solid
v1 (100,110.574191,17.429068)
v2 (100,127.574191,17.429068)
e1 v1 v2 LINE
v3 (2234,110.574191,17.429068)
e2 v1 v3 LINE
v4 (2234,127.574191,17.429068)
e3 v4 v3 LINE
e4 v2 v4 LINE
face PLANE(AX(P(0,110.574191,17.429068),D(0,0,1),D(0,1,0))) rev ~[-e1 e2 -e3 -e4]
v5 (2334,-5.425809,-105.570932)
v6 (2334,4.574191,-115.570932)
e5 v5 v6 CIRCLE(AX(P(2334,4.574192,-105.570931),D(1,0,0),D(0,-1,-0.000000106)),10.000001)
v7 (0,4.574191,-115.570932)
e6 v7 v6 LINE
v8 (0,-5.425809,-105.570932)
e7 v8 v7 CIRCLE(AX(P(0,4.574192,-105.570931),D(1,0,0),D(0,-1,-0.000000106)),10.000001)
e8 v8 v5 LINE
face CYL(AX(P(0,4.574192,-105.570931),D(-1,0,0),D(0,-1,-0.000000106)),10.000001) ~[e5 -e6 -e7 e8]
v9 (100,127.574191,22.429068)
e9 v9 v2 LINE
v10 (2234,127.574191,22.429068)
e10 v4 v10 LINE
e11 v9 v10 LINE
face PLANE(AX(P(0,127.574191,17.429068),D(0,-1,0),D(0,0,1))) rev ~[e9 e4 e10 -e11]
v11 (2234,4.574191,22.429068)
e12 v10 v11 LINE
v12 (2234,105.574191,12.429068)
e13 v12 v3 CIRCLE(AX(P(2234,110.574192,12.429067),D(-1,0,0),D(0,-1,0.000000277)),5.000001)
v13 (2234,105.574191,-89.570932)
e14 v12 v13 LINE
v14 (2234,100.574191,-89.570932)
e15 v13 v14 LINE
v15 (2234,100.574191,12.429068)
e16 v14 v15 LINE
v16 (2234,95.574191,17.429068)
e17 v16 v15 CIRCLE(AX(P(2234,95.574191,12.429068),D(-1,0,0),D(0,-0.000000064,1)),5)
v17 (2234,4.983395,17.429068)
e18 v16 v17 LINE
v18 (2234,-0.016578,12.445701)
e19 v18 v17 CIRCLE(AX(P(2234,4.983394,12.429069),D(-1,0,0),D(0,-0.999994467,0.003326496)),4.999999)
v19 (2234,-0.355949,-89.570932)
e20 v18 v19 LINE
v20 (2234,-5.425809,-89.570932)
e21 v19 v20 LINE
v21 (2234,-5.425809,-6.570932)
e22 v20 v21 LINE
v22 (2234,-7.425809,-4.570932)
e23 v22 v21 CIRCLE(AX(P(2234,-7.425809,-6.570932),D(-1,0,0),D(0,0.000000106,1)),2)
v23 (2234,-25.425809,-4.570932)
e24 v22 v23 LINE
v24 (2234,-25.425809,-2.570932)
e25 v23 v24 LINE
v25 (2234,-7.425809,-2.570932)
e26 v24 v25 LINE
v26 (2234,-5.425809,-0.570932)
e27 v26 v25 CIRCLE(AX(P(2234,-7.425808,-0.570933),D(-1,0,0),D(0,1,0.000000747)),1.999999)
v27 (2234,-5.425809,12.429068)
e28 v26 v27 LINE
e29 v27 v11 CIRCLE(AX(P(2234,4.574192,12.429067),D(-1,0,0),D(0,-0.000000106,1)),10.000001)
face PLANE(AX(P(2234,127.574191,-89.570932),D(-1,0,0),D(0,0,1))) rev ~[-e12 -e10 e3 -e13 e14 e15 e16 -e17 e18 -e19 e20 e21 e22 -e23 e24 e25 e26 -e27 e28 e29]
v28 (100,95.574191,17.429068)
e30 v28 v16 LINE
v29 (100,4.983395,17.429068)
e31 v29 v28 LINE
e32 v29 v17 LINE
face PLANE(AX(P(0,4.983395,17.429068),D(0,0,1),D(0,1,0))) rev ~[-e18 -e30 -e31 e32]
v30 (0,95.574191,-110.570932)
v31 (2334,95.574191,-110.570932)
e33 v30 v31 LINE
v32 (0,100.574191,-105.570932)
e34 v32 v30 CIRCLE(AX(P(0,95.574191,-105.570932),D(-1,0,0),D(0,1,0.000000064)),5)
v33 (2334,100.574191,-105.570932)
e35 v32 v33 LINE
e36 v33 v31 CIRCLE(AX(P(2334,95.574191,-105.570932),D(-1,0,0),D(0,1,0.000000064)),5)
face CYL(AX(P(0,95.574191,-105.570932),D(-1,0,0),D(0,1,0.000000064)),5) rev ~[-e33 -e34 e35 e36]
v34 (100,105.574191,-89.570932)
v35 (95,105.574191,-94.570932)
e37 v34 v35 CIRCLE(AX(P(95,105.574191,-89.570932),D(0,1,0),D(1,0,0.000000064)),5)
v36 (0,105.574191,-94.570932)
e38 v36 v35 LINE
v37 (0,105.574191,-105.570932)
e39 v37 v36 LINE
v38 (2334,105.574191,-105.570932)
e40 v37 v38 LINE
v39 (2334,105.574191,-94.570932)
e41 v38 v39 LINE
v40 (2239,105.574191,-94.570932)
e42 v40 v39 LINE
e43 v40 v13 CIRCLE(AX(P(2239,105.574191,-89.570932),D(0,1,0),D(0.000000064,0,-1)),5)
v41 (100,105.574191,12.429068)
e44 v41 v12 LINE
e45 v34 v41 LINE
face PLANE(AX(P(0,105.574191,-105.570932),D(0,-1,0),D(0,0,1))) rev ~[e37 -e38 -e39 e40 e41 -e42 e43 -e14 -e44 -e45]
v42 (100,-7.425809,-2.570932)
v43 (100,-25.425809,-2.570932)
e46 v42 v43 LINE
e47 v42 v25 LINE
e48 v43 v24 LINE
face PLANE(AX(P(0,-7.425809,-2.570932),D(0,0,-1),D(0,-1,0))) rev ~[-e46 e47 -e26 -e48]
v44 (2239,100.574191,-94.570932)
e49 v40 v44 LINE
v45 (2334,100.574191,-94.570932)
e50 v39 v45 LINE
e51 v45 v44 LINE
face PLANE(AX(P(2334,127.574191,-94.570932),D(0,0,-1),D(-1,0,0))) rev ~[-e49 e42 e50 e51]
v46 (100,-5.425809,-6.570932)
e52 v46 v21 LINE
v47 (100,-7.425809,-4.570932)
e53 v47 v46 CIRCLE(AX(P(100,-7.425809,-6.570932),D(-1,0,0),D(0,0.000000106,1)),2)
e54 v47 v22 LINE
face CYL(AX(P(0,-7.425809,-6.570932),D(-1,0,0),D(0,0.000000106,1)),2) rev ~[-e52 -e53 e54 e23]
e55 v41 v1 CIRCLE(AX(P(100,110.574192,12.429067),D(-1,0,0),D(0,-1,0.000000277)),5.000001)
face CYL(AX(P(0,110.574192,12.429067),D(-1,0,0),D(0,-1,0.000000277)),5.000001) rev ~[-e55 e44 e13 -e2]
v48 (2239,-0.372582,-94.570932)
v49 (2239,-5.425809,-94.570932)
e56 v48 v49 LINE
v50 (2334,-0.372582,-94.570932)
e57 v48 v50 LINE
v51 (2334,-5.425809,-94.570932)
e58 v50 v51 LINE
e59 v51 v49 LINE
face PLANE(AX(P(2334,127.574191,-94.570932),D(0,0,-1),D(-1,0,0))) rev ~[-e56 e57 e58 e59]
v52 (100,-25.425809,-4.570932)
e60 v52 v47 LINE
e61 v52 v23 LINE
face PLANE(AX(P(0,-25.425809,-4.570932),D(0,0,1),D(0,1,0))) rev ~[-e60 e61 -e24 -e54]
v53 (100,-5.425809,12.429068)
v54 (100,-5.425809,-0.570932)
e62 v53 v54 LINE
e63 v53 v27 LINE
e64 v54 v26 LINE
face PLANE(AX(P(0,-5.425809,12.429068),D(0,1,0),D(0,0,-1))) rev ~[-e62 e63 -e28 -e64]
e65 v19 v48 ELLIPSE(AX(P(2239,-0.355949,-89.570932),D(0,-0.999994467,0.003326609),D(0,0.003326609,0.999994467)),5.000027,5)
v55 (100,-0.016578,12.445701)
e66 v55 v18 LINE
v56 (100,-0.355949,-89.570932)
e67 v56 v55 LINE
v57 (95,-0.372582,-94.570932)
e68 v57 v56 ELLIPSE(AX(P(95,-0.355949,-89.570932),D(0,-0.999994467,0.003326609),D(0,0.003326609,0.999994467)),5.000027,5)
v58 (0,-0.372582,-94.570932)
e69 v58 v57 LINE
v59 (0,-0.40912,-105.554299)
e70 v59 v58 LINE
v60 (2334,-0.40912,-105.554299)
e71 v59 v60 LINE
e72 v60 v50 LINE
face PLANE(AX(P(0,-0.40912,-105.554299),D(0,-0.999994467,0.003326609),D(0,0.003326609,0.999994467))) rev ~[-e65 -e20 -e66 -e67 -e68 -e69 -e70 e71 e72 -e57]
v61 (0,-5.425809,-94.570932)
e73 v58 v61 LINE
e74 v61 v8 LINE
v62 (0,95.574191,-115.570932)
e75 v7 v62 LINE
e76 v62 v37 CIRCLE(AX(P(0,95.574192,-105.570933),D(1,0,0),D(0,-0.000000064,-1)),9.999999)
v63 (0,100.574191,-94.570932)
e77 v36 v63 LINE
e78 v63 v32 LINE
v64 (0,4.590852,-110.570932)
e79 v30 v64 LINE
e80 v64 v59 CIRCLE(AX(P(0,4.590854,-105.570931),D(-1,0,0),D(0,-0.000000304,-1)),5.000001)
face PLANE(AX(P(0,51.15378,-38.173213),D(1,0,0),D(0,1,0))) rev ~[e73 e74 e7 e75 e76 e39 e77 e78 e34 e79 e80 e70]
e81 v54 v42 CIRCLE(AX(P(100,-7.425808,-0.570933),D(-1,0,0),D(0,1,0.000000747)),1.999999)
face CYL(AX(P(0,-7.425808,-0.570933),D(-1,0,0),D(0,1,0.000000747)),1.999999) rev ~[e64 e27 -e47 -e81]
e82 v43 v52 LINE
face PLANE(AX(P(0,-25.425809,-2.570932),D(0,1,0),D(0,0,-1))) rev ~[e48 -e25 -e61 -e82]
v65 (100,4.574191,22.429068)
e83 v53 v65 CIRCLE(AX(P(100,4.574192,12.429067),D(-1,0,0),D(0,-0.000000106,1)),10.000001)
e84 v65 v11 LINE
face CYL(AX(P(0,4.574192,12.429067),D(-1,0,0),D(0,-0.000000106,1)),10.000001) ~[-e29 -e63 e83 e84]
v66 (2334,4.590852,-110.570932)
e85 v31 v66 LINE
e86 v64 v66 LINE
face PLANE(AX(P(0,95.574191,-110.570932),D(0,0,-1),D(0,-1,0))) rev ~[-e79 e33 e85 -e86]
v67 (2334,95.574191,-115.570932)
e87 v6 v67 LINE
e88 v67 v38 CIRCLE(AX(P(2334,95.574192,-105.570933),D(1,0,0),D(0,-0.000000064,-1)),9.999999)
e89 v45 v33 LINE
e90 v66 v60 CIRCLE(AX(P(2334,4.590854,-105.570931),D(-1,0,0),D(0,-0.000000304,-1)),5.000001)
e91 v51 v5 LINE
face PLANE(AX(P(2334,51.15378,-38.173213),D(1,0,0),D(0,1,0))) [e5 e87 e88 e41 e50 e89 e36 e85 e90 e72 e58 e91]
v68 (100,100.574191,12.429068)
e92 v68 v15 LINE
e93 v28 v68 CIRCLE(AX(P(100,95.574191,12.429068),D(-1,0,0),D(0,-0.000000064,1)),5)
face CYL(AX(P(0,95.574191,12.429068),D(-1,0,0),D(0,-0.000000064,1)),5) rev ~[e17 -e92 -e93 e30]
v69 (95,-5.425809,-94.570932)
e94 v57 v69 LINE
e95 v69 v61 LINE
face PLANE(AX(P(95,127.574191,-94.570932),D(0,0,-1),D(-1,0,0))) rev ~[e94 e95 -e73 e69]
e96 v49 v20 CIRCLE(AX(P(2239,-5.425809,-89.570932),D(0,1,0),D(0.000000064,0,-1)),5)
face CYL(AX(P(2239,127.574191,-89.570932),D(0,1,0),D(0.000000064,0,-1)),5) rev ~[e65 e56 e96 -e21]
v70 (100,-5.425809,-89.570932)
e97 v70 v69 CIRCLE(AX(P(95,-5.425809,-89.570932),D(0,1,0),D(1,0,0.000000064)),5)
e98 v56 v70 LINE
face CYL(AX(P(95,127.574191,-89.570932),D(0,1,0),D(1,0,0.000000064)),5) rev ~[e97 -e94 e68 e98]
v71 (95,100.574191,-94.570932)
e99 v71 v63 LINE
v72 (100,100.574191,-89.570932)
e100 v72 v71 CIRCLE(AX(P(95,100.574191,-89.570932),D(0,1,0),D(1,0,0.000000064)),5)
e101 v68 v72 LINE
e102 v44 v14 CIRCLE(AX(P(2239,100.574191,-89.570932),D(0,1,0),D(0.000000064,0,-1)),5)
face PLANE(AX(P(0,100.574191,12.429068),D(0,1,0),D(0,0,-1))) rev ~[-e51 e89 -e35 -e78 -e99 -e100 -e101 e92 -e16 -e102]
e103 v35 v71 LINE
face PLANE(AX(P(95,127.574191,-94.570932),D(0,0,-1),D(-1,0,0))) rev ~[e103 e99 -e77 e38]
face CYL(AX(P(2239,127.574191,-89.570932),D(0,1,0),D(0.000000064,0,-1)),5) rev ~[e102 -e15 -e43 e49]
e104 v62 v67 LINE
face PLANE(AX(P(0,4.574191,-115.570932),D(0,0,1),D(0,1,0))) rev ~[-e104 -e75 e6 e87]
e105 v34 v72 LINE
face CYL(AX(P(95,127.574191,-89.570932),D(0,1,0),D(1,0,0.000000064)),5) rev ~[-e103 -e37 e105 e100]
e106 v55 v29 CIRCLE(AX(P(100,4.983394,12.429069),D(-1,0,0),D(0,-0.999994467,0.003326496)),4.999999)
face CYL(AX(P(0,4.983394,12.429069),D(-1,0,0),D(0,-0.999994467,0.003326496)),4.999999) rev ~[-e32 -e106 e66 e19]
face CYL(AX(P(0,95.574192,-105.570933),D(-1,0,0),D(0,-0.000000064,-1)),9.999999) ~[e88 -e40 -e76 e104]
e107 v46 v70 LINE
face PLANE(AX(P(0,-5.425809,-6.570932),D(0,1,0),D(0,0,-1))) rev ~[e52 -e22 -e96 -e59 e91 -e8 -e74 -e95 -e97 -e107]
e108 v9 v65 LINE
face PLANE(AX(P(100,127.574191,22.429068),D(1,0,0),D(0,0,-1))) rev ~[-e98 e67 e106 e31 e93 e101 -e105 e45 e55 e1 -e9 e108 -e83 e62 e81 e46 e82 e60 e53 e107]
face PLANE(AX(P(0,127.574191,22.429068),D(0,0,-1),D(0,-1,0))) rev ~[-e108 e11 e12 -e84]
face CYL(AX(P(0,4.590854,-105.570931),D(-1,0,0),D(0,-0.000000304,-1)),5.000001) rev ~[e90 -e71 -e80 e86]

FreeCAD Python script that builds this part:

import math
import FreeCAD as App
import Part
import Sketcher

V = App.Vector
Q = App.Units.Quantity

doc = App.newDocument("Part")
body = doc.addObject("PartDesign::Body", "Body")

sketch1 = doc.addObject("Sketcher::SketchObject", "Sketch")
body.addObject(sketch1)
sketch1.AttachmentSupport = (doc.YZ_Plane, [""])
sketch1.MapMode = "FlatFace"
sketch1.addGeometry([
    Part.LineSegment(V(127.6, 17.4, 0), V(127.6, 22.4, 0)),
    Part.LineSegment(V(127.6, 22.4, 0), V(4.6, 22.4, 0)),
    Part.ArcOfCircle(Part.Circle(V(4.6, 12.4, 0), V(0, 0, 1), 10), math.radians(90), math.radians(180)),
    Part.LineSegment(V(-5.4, 12.4, 0), V(-5.4, -0.6, 0)),
    Part.ArcOfCircle(Part.Circle(V(-7.4, -0.6, 0), V(0, 0, 1), 2), math.radians(-90), math.radians(0)),
    Part.LineSegment(V(-7.4, -2.6, 0), V(-25.4, -2.6, 0)),
    Part.LineSegment(V(-25.4, -2.6, 0), V(-25.4, -4.6, 0)),
    Part.LineSegment(V(-25.4, -4.6, 0), V(-7.4, -4.6, 0)),
    Part.ArcOfCircle(Part.Circle(V(-7.4, -6.6, 0), V(0, 0, 1), 2), math.radians(0), math.radians(90)),
    Part.LineSegment(V(-5.4, -6.6, 0), V(-5.4, -105.6, 0)),
    Part.ArcOfCircle(Part.Circle(V(4.6, -105.6, 0), V(0, 0, 1), 10), math.radians(-180), math.radians(-90)),
    Part.LineSegment(V(4.6, -115.6, 0), V(95.6, -115.6, 0)),
    Part.ArcOfCircle(Part.Circle(V(95.6, -105.6, 0), V(0, 0, 1), 10), math.radians(-90), math.radians(0)),
    Part.LineSegment(V(105.6, -105.6, 0), V(105.6, 12.4, 0)),
    Part.ArcOfCircle(Part.Circle(V(110.6, 12.4, 0), V(0, 0, 1), 5), math.radians(90), math.radians(180)),
    Part.LineSegment(V(110.6, 17.4, 0), V(127.6, 17.4, 0)),
    Part.ArcOfCircle(Part.Circle(V(95.6, 12.4, 0), V(0, 0, 1), 5), math.radians(0), math.radians(90)),
    Part.LineSegment(V(100.6, 12.4, 0), V(100.6, -105.6, 0)),
    Part.ArcOfCircle(Part.Circle(V(95.6, -105.6, 0), V(0, 0, 1), 5), math.radians(-90), math.radians(0)),
    Part.LineSegment(V(95.6, -110.6, 0), V(4.6, -110.6, 0)),
    Part.ArcOfCircle(Part.Circle(V(4.6, -105.6, 0), V(0, 0, 1), 5), math.radians(180), math.radians(270)),
    Part.LineSegment(V(-0.4, -105.6, 0), V(0, 12.4, 0)),
    Part.ArcOfCircle(Part.Circle(V(5, 12.4, 0), V(0, 0, 1), 5), math.radians(90), math.radians(180)),
    Part.LineSegment(V(5, 17.4, 0), V(95.6, 17.4, 0)),
], False)
sketch1.addConstraint([
    Sketcher.Constraint("Coincident", 0, 2, 1, 1),
    Sketcher.Constraint("Tangent", 1, 2, 2, 1),
    Sketcher.Constraint("Tangent", 2, 2, 3, 1),
    Sketcher.Constraint("Tangent", 3, 2, 4, 2),
    Sketcher.Constraint("Tangent", 4, 1, 5, 1),
    Sketcher.Constraint("Coincident", 5, 2, 6, 1),
    Sketcher.Constraint("Coincident", 6, 2, 7, 1),
    Sketcher.Constraint("Tangent", 7, 2, 8, 2),
    Sketcher.Constraint("Tangent", 8, 1, 9, 1),
    Sketcher.Constraint("Tangent", 9, 2, 10, 1),
    Sketcher.Constraint("Tangent", 10, 2, 11, 1),
    Sketcher.Constraint("Tangent", 11, 2, 12, 1),
    Sketcher.Constraint("Tangent", 12, 2, 13, 1),
    Sketcher.Constraint("Tangent", 13, 2, 14, 2),
    Sketcher.Constraint("Tangent", 14, 1, 15, 1),
    Sketcher.Constraint("Coincident", 15, 2, 0, 1),
    Sketcher.Constraint("Tangent", 16, 1, 17, 1),
    Sketcher.Constraint("Tangent", 17, 2, 18, 2),
    Sketcher.Constraint("Tangent", 18, 1, 19, 1),
    Sketcher.Constraint("Tangent", 19, 2, 20, 2),
    Sketcher.Constraint("Tangent", 20, 1, 21, 1),
    Sketcher.Constraint("Tangent", 21, 2, 22, 2),
    Sketcher.Constraint("Tangent", 22, 1, 23, 1),
    Sketcher.Constraint("Tangent", 23, 2, 16, 2),
    Sketcher.Constraint("Vertical", 0),
    Sketcher.Constraint("Horizontal", 1),
    Sketcher.Constraint("Vertical", 3),
    Sketcher.Constraint("Horizontal", 5),
    Sketcher.Constraint("Vertical", 6),
    Sketcher.Constraint("Horizontal", 7),
    Sketcher.Constraint("Vertical", 9),
    Sketcher.Constraint("Horizontal", 11),
    Sketcher.Constraint("Vertical", 13),
    Sketcher.Constraint("Horizontal", 15),
    Sketcher.Constraint("Vertical", 17),
    Sketcher.Constraint("Horizontal", 19),
    Sketcher.Constraint("Horizontal", 23),
    Sketcher.Constraint("Coincident", 18, 3, 12, 3),
    Sketcher.Constraint("Equal", 4, 8),
    Sketcher.Constraint("Equal", 2, 10),
    Sketcher.Constraint("Equal", 10, 12),
    Sketcher.Constraint("Equal", 14, 16),
    Sketcher.Constraint("Equal", 16, 18),
    Sketcher.Constraint("Equal", 18, 20),
    Sketcher.Constraint("Equal", 20, 22),
    Sketcher.Constraint("Horizontal", 2, 3, 14, 3),
    Sketcher.Constraint("Horizontal", 14, 3, 16, 3),
    Sketcher.Constraint("Vertical", 4, 3, 8, 3),
    Sketcher.Constraint("Radius", 2, Q("10.000001 mm")),
    Sketcher.Constraint("Radius", 4, Q("1.999999 mm")),
    Sketcher.Constraint("Radius", 14, Q("5.000001 mm")),
    Sketcher.Constraint("DistanceX", 1, 2, 1, 1, Q("123 mm")),
    Sketcher.Constraint("DistanceX", 5, 2, 5, 1, Q("18 mm")),
    Sketcher.Constraint("DistanceX", 11, 1, 11, 2, Q("91 mm")),
    Sketcher.Constraint("DistanceY", 3, 2, 3, 1, Q("13 mm")),
    Sketcher.Constraint("DistanceY", 6, 2, 6, 1, Q("2 mm")),
    Sketcher.Constraint("DistanceY", 9, 2, 9, 1, Q("99 mm")),
    Sketcher.Constraint("DistanceX", 19, 2, 19, 1, Q("90.983339 mm")),
    Sketcher.Constraint("DistanceY", 20, 1, -1, 1, Q("105.554299 mm")),
    Sketcher.Constraint("DistanceX", 2, 3, 22, 3, Q("0.409202 mm")),
    Sketcher.Constraint("DistanceX", 8, 3, -1, 1, Q("7.425809 mm")),
])
pad1 = doc.addObject("PartDesign::Pad", "Pad")
body.addObject(pad1)
pad1.Profile = sketch1
pad1.Length = 2334

sketch2 = doc.addObject("Sketcher::SketchObject", "Sketch001")
body.addObject(sketch2)
sketch2.AttachmentSupport = (doc.XZ_Plane, [""])
sketch2.MapMode = "FlatFace"
sketch2.AttachmentOffset = App.Placement(V(0, 0, -127.574191), App.Rotation())
sketch2.addGeometry([
    Part.ArcOfCircle(Part.Circle(V(95, -89.6, 0), V(0, 0, 1), 5), math.radians(-90), math.radians(0)),
    Part.LineSegment(V(95, -94.6, 0), V(0, -94.6, 0)),
    Part.LineSegment(V(0, -94.6, 0), V(0, 22.4, 0)),
    Part.LineSegment(V(0, 22.4, 0), V(100, 22.4, 0)),
    Part.LineSegment(V(100, 22.4, 0), V(100, -89.6, 0)),
    Part.LineSegment(V(2334, -94.6, 0), V(2239, -94.6, 0)),
    Part.ArcOfCircle(Part.Circle(V(2239, -89.6, 0), V(0, 0, 1), 5), math.radians(180), math.radians(270)),
    Part.LineSegment(V(2234, -89.6, 0), V(2234, 22.4, 0)),
    Part.LineSegment(V(2234, 22.4, 0), V(2334, 22.4, 0)),
    Part.LineSegment(V(2334, 22.4, 0), V(2334, -94.6, 0)),
], False)
sketch2.addConstraint([
    Sketcher.Constraint("Tangent", 0, 1, 1, 1),
    Sketcher.Constraint("Coincident", 1, 2, 2, 1),
    Sketcher.Constraint("Coincident", 2, 2, 3, 1),
    Sketcher.Constraint("Coincident", 3, 2, 4, 1),
    Sketcher.Constraint("Tangent", 4, 2, 0, 2),
    Sketcher.Constraint("Tangent", 5, 2, 6, 2),
    Sketcher.Constraint("Tangent", 6, 1, 7, 1),
    Sketcher.Constraint("Coincident", 7, 2, 8, 1),
    Sketcher.Constraint("Coincident", 8, 2, 9, 1),
    Sketcher.Constraint("Coincident", 9, 2, 5, 1),
    Sketcher.Constraint("Horizontal", 1),
    Sketcher.Constraint("Vertical", 2),
    Sketcher.Constraint("Horizontal", 3),
    Sketcher.Constraint("Vertical", 4),
    Sketcher.Constraint("Horizontal", 5),
    Sketcher.Constraint("Vertical", 7),
    Sketcher.Constraint("Horizontal", 8),
    Sketcher.Constraint("Vertical", 9),
    Sketcher.Constraint("Equal", 0, 6),
    Sketcher.Constraint("PointOnObject", 1, 2, -2),
    Sketcher.Constraint("Horizontal", 0, 3, 6, 3),
    Sketcher.Constraint("Horizontal", 3, 2, 7, 2),
    Sketcher.Constraint("Equal", 1, 5),
    Sketcher.Constraint("Radius", 0, Q("5 mm")),
    Sketcher.Constraint("DistanceX", 1, 2, 1, 1, Q("95 mm")),
    Sketcher.Constraint("DistanceY", 2, 1, 2, 2, Q("117 mm")),
    Sketcher.Constraint("DistanceX", -1, 1, 6, 3, Q("2239 mm")),
    Sketcher.Constraint("DistanceY", 0, 1, -1, 1, Q("94.570932 mm")),
])
pocket1 = doc.addObject("PartDesign::Pocket", "Pocket")
body.addObject(pocket1)
pocket1.Profile = sketch2
pocket1.Length = 155
pocket1.Reversed = True

doc.recompute()
